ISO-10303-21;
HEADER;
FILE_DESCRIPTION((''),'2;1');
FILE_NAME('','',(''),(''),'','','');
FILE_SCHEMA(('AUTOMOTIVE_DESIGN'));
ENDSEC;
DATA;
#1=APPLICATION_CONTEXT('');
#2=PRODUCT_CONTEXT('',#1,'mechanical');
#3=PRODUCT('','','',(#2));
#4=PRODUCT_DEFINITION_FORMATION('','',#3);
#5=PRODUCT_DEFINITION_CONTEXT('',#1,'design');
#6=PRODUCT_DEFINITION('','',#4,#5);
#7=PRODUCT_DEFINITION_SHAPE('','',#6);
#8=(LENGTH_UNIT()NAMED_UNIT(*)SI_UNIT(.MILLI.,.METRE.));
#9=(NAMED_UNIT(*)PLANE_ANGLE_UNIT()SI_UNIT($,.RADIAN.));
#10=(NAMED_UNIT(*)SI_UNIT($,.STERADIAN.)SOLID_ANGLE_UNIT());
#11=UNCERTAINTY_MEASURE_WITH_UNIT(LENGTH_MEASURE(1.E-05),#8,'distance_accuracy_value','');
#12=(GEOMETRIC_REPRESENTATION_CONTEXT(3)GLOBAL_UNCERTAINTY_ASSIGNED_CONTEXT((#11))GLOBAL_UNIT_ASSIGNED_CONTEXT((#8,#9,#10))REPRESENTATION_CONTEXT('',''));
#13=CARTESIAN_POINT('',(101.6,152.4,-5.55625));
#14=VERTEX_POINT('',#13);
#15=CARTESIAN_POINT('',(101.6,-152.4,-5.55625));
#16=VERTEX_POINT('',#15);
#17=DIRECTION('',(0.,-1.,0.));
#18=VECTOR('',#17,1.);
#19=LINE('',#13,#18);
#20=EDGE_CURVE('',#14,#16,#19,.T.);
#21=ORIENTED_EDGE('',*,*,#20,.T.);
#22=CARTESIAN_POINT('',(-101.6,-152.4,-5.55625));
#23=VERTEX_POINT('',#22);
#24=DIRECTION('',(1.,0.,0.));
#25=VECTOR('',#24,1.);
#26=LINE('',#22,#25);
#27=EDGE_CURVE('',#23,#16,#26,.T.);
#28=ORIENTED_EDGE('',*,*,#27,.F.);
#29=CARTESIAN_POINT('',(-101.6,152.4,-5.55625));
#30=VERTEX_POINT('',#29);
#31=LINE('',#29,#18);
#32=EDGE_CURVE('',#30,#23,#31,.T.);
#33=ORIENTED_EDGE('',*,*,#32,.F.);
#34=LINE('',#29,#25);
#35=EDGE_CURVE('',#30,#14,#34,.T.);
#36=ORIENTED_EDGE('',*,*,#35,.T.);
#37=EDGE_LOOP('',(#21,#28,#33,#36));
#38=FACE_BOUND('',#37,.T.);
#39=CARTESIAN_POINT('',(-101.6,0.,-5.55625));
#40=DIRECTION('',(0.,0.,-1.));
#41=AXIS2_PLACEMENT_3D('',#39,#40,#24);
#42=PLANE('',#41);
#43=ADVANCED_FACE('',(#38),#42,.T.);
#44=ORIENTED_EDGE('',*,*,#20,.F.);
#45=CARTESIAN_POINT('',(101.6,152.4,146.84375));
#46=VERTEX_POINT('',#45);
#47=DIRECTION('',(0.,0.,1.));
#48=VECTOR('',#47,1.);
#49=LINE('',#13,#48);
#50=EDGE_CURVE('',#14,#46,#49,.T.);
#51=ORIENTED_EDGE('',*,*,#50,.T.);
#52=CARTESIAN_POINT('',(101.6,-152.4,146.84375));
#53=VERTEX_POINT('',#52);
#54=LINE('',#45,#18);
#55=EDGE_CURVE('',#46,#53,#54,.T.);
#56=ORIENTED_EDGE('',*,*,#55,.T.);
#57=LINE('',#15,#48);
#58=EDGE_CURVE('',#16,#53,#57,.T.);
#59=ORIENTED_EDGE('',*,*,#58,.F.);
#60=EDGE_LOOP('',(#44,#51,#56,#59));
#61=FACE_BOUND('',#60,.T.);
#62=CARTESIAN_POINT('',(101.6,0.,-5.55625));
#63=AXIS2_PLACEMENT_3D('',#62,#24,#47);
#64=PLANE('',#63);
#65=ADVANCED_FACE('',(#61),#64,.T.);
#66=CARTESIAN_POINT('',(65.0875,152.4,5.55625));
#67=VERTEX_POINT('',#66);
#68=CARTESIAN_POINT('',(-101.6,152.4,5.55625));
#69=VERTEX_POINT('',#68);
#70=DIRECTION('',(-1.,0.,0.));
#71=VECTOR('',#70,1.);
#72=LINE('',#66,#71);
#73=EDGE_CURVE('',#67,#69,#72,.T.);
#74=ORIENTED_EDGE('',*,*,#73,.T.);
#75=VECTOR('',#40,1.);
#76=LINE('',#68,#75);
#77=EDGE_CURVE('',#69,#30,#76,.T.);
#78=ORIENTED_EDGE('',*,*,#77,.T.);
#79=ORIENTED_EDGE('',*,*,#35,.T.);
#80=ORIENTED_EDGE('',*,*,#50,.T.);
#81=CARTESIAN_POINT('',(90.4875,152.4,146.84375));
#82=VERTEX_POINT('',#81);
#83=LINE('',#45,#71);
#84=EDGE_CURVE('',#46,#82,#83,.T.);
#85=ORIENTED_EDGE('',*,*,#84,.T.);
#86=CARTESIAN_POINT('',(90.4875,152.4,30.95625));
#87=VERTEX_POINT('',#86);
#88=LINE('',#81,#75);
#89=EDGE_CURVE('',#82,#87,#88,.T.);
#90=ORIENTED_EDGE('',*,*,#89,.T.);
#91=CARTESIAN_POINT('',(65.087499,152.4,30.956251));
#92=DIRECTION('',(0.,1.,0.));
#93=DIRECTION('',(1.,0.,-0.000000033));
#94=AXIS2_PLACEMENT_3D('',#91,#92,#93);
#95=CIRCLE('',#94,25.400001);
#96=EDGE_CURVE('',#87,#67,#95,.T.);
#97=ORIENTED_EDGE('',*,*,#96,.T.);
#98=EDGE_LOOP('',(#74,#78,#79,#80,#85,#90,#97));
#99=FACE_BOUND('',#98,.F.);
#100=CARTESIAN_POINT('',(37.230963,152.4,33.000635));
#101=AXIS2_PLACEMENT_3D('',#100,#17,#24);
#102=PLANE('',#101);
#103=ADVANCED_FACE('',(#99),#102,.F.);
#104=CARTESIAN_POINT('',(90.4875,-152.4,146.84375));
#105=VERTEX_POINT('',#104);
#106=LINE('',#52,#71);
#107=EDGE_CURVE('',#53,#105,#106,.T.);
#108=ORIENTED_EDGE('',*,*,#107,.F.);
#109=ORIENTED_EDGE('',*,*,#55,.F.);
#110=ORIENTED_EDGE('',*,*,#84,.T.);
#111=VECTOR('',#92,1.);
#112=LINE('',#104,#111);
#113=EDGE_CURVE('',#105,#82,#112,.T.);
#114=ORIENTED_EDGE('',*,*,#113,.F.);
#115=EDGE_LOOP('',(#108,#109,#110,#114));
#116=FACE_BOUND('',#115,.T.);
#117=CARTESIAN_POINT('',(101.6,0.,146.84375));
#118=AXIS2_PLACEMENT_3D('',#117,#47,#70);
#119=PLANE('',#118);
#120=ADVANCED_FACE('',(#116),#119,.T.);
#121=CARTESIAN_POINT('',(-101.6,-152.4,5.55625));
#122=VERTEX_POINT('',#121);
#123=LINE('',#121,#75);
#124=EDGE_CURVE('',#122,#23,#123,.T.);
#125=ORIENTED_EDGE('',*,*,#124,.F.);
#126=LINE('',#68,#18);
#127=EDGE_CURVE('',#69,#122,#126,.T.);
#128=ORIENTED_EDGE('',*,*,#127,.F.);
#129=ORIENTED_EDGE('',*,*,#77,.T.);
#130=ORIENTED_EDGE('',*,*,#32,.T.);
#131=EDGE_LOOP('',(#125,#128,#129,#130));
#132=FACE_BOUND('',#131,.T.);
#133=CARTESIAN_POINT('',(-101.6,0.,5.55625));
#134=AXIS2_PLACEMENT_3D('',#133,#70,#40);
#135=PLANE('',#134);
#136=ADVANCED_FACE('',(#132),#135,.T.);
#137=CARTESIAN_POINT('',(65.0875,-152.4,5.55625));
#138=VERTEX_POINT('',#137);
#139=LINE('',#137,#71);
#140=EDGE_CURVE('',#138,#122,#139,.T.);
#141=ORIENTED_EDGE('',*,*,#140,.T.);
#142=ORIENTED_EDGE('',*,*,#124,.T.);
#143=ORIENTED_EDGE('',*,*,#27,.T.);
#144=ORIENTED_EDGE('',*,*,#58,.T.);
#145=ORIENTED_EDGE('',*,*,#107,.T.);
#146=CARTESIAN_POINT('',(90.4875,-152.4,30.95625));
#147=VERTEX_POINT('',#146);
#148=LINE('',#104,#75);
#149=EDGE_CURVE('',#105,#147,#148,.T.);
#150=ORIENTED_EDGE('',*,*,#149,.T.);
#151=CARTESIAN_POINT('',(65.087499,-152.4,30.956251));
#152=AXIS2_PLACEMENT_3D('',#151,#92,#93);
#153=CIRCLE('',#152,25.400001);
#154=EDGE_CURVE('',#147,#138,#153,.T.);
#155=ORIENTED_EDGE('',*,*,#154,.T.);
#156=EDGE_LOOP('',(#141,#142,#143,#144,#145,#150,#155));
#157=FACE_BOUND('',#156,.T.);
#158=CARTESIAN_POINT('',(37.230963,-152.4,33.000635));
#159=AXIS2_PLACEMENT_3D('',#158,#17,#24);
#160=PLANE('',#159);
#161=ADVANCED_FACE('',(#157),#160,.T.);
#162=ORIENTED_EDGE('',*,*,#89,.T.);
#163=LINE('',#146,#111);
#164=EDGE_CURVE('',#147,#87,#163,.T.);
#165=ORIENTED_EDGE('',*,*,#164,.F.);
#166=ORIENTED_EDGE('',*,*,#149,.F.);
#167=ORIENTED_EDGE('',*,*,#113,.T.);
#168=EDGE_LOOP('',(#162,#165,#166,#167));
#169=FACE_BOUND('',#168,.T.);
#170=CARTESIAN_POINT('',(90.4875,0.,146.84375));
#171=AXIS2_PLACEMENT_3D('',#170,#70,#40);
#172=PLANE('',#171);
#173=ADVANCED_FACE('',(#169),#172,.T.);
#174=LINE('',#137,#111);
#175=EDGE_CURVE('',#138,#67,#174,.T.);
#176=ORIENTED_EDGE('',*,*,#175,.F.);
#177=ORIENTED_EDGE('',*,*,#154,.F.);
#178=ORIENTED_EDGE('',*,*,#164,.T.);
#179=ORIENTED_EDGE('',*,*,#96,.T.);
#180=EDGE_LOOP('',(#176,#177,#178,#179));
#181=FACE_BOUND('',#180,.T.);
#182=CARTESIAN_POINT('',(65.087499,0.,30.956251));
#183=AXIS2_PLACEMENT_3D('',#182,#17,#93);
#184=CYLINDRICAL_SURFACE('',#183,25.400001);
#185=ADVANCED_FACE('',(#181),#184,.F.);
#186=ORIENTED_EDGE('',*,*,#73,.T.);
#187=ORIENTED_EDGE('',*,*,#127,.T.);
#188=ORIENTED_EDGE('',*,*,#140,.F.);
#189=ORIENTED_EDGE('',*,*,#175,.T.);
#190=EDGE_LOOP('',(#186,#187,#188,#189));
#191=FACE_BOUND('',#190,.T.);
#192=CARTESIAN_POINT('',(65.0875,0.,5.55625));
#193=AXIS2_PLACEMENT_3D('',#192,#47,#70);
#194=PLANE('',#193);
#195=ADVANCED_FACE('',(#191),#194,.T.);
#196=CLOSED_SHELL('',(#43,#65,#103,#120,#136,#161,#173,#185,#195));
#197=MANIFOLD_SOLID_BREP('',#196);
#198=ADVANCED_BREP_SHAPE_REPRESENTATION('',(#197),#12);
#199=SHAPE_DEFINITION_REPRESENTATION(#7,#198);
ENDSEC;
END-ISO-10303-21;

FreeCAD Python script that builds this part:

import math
import FreeCAD as App
import Part
import Sketcher
Q = App.Units.Quantity

doc = App.newDocument("Part")
body = doc.addObject("PartDesign::Body", "Body")

# Sketch on XZ plane
sketch1 = body.newObject("Sketcher::SketchObject", "Sketch")
sketch1.AttachmentSupport = (doc.getObject("XZ_Plane"), [""])
sketch1.MapMode = "FlatFace"
sketch1.addGeometry([
    Part.LineSegment(App.Vector(65.0875, 5.55625, 0), App.Vector(-101.6, 5.55625, 0)),  # 0
    Part.LineSegment(App.Vector(-101.6, 5.55625, 0), App.Vector(-101.6, -5.55625, 0)),  # 1
    Part.LineSegment(App.Vector(-101.6, -5.55625, 0), App.Vector(101.6, -5.55625, 0)),  # 2
    Part.LineSegment(App.Vector(101.6, -5.55625, 0), App.Vector(101.6, 146.84375, 0)),  # 3
    Part.LineSegment(App.Vector(101.6, 146.84375, 0), App.Vector(90.4875, 146.84375, 0)),  # 4
    Part.LineSegment(App.Vector(90.4875, 146.84375, 0), App.Vector(90.4875, 30.95625, 0)),  # 5
    Part.ArcOfCircle(Part.Circle(App.Vector(65.087499, 30.956251, 0), App.Vector(0, 0, 1), 25.400001), math.radians(-89.999998), math.radians(-0.000002)),  # 6
], False)
sketch1.addConstraint([
    Sketcher.Constraint("Coincident", 0, 2, 1, 1),
    Sketcher.Constraint("Coincident", 1, 2, 2, 1),
    Sketcher.Constraint("Coincident", 2, 2, 3, 1),
    Sketcher.Constraint("Coincident", 3, 2, 4, 1),
    Sketcher.Constraint("Coincident", 4, 2, 5, 1),
    Sketcher.Constraint("Tangent", 5, 2, 6, 2),
    Sketcher.Constraint("Tangent", 6, 1, 0, 1),
    Sketcher.Constraint("Horizontal", 0),
    Sketcher.Constraint("Vertical", 1),
    Sketcher.Constraint("Horizontal", 2),
    Sketcher.Constraint("Vertical", 3),
    Sketcher.Constraint("Horizontal", 4),
    Sketcher.Constraint("Vertical", 5),
    Sketcher.Constraint("Symmetric", 0, 2, 2, 2, -1, 1),
    Sketcher.Constraint("Equal", 4, 1),
    Sketcher.Constraint("Radius", 6, Q("1 in")),
    Sketcher.Constraint("DistanceX", 2, 1, 2, 2, Q("8 in")),
    Sketcher.Constraint("DistanceY", 3, 1, 3, 2, Q("6 in")),
    Sketcher.Constraint("DistanceX", 0, 2, 0, 1, Q("6.5625 in")),
])
pad1 = body.newObject("PartDesign::Pad", "Pad")
pad1.Profile = sketch1
pad1.Length = Q("12 in")
pad1.Midplane = True

doc.recompute()
